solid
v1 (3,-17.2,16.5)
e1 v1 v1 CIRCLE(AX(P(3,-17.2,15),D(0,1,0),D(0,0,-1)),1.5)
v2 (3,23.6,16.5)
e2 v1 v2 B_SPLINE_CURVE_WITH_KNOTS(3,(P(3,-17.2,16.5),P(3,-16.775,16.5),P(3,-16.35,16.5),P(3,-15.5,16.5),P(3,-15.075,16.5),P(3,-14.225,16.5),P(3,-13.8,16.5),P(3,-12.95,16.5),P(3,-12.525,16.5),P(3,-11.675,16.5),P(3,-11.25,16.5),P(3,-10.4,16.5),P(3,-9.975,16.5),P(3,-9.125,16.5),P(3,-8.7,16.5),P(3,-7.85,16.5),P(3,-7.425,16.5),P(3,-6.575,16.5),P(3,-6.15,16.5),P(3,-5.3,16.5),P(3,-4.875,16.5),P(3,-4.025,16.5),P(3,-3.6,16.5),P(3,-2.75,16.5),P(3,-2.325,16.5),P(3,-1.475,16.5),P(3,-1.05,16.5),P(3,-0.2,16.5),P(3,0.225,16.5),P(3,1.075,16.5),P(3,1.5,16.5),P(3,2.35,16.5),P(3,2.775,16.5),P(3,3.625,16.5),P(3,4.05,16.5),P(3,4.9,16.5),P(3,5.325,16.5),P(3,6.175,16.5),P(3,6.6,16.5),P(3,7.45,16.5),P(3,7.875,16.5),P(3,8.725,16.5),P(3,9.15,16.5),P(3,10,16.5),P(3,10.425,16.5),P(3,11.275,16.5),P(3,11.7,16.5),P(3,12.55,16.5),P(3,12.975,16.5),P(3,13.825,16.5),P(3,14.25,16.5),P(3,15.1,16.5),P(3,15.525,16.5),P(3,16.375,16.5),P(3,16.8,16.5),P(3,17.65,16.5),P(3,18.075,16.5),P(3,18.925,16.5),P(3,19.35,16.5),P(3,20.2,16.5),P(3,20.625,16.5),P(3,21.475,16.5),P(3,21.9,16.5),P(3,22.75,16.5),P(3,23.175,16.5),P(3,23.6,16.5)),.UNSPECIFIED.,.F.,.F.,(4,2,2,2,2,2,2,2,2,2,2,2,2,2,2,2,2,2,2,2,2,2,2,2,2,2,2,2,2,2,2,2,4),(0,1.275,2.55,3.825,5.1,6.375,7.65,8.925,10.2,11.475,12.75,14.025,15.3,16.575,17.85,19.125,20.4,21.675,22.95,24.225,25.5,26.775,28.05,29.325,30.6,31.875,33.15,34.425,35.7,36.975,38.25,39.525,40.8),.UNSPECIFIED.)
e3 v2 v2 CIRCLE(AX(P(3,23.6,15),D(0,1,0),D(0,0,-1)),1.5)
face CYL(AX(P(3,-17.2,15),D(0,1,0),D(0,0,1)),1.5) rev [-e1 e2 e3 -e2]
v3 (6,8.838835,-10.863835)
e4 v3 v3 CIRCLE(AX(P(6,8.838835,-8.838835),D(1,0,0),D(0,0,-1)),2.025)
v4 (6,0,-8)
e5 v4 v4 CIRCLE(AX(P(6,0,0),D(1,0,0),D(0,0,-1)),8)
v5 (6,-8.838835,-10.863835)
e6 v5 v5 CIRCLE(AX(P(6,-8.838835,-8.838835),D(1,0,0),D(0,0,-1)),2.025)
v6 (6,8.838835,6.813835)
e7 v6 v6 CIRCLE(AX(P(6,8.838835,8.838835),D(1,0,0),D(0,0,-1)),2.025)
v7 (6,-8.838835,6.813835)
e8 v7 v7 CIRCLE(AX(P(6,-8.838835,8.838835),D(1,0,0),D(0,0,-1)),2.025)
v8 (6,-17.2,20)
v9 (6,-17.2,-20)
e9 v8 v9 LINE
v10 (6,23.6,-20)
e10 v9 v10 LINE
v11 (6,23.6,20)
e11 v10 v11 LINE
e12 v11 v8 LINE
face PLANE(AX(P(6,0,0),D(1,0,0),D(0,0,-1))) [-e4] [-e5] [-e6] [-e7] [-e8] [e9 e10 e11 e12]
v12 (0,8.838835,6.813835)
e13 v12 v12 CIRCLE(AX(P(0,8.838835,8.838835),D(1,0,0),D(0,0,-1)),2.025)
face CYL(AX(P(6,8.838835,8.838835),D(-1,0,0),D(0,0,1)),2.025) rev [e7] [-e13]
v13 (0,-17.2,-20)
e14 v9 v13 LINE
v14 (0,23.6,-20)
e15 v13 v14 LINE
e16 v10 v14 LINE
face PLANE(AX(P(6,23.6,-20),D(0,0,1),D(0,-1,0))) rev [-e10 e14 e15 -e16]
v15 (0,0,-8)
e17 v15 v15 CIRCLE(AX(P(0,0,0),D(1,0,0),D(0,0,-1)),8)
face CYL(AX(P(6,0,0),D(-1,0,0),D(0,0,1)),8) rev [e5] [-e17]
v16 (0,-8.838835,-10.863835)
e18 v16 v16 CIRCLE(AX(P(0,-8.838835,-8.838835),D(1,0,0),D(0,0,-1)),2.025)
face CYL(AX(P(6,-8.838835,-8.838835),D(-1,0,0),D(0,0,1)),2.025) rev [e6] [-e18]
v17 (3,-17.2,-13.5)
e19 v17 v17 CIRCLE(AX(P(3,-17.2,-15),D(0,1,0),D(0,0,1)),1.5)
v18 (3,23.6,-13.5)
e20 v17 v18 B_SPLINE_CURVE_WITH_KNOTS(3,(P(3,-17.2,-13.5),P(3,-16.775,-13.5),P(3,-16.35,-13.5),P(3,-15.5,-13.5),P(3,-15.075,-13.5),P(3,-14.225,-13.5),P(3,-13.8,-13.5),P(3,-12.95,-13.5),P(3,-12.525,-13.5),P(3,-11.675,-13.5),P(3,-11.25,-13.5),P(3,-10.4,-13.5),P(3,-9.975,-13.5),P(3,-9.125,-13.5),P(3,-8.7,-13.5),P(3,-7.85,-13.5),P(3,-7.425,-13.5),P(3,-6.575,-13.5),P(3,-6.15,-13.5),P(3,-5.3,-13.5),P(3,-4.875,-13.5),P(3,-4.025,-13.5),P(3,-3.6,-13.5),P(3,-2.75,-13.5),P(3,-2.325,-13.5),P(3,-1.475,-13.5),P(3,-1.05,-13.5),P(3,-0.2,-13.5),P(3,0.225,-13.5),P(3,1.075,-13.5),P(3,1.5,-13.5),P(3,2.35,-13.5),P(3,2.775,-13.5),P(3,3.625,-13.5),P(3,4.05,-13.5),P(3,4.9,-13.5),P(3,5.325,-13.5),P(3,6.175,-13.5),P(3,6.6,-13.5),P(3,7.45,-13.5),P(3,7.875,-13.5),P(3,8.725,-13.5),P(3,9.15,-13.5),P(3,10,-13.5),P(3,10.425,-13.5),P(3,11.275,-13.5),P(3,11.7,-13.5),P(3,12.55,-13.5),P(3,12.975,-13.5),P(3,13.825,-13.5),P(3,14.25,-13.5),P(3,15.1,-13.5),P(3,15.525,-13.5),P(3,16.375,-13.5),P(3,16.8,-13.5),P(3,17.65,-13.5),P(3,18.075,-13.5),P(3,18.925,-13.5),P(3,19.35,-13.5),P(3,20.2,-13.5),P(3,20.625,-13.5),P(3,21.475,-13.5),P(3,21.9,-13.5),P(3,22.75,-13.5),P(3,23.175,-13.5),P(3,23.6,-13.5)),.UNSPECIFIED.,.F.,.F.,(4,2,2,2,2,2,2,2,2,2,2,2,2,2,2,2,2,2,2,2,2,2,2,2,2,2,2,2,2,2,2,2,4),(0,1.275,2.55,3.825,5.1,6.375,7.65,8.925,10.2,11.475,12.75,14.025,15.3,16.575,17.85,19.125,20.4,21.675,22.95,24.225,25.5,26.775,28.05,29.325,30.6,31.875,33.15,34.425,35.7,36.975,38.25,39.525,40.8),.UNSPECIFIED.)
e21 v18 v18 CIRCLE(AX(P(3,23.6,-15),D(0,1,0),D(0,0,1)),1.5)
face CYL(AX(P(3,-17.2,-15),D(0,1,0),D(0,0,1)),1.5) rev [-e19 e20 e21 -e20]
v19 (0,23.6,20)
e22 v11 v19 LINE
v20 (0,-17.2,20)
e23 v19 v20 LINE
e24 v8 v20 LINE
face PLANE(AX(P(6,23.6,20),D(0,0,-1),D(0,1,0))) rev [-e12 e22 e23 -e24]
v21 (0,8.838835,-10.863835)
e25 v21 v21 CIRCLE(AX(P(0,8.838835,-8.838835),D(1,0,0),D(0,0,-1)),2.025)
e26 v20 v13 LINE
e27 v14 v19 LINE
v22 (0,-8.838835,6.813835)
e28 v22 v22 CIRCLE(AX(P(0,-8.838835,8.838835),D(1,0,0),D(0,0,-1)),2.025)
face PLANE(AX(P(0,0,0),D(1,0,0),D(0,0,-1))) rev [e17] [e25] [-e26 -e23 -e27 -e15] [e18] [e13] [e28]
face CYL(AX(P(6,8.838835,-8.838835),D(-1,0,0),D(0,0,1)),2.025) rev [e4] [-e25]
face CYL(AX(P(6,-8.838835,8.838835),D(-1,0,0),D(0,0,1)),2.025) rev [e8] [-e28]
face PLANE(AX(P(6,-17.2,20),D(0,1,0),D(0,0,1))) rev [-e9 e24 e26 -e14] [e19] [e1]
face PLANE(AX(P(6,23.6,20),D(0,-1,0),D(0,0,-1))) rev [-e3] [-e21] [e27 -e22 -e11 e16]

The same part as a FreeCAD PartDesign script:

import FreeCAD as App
import Part
import Sketcher


def add_polygon(sketch, points):
    """Adds a closed chain of lines whose ends are joined by coincident constraints."""
    first, n = sketch.GeometryCount, len(points)
    for a, b in zip(points, points[1:] + points[:1]):
        sketch.addGeometry(Part.LineSegment(App.Vector(*a, 0), App.Vector(*b, 0)), False)
    for i in range(n):
        sketch.addConstraint(Sketcher.Constraint("Coincident", first + i, 2, first + (i + 1) % n, 1))

doc = App.newDocument("Part")
params = doc.addObject("Spreadsheet::Sheet", "Params")
for row, (alias, value) in enumerate([
    ("sketch1_diameter", "16 mm"),
    ("sketch1_diameter2", "4.05 mm"),
    ("sketch1_height", "40 mm"),
    ("sketch1_width", "40.8 mm"),
    ("pad1_length", "6 mm"),
    ("sketch2_diameter", "3 mm"),
], start=1):
    params.set(f"A{row}", alias)
    params.set(f"B{row}", "=" + value)
    params.setAlias(f"B{row}", alias)

body = doc.addObject("PartDesign::Body", "Body")

sketch1 = doc.addObject("Sketcher::SketchObject", "Sketch")
body.addObject(sketch1)
sketch1.AttachmentSupport = (doc.YZ_Plane, [""])
sketch1.MapMode = "FlatFace"
add_polygon(sketch1, [(23.6, 20), (-17.2, 20), (-17.2, -20), (23.6, -20)])
sketch1.addGeometry(Part.Circle(App.Vector(-8.8, 8.8, 0), App.Vector(0, 0, 1), 2), False)
sketch1.addGeometry(Part.Circle(App.Vector(-8.8, -8.8, 0), App.Vector(0, 0, 1), 2), False)
sketch1.addGeometry(Part.Circle(App.Vector(8.8, 8.8, 0), App.Vector(0, 0, 1), 2), False)
sketch1.addGeometry(Part.Circle(App.Vector(0, 0, 0), App.Vector(0, 0, 1), 8), False)
sketch1.addGeometry(Part.Circle(App.Vector(8.8, -8.8, 0), App.Vector(0, 0, 1), 2), False)
sketch1.addConstraint(Sketcher.Constraint("Horizontal", 0))
sketch1.addConstraint(Sketcher.Constraint("Vertical", 1))
sketch1.addConstraint(Sketcher.Constraint("Horizontal", 2))
sketch1.addConstraint(Sketcher.Constraint("Vertical", 3))
sketch1.addConstraint(Sketcher.Constraint("Coincident", 7, 3, -1, 1))
sketch1.addConstraint(Sketcher.Constraint("Equal", 4, 5))
sketch1.addConstraint(Sketcher.Constraint("Equal", 5, 6))
sketch1.addConstraint(Sketcher.Constraint("Equal", 6, 8))
sketch1.addConstraint(Sketcher.Constraint("Symmetric", 5, 3, 6, 3, -1, 1))
sketch1.addConstraint(Sketcher.Constraint("Symmetric", 4, 3, 8, 3, -1, 1))
sketch1.addConstraint(Sketcher.Constraint("Symmetric", 4, 3, 6, 3, -2))
sketch1.addConstraint(Sketcher.Constraint("Diameter", 7, 16.0))
sketch1.addConstraint(Sketcher.Constraint("Diameter", 4, 4.05))
sketch1.addConstraint(Sketcher.Constraint("DistanceY", 1, 2, 1, 1, 40.0))
sketch1.addConstraint(Sketcher.Constraint("DistanceX", 0, 2, 0, 1, 40.8))
sketch1.addConstraint(Sketcher.Constraint("DistanceY", -1, 1, 0, 2, 20.0))
sketch1.addConstraint(Sketcher.Constraint("DistanceX", 0, 2, -1, 1, 17.2))
sketch1.addConstraint(Sketcher.Constraint("DistanceY", 5, 3, 4, 3, 17.67767))
sketch1.addConstraint(Sketcher.Constraint("DistanceX", 4, 3, 6, 3, 17.67767))
sketch1.setExpression("Constraints[15]", "Params.sketch1_diameter")
sketch1.setExpression("Constraints[16]", "Params.sketch1_diameter2")
sketch1.setExpression("Constraints[17]", "Params.sketch1_height")
sketch1.setExpression("Constraints[18]", "Params.sketch1_width")
pad1 = doc.addObject("PartDesign::Pad", "Pad")
body.addObject(pad1)
pad1.Profile = sketch1
pad1.setExpression("Length", "Params.pad1_length")

sketch2 = doc.addObject("Sketcher::SketchObject", "Sketch001")
body.addObject(sketch2)
sketch2.AttachmentSupport = (doc.XZ_Plane, [""])
sketch2.MapMode = "FlatFace"
sketch2.addGeometry(Part.Circle(App.Vector(3, -15, 0), App.Vector(0, 0, 1), 1.5), False)
sketch2.addGeometry(Part.Circle(App.Vector(3, 15, 0), App.Vector(0, 0, 1), 1.5), False)
sketch2.addConstraint(Sketcher.Constraint("Equal", 0, 1))
sketch2.addConstraint(Sketcher.Constraint("Symmetric", 0, 3, 1, 3, -1))
sketch2.addConstraint(Sketcher.Constraint("Diameter", 0, 3.0))
sketch2.addConstraint(Sketcher.Constraint("DistanceX", -1, 1, 0, 3, 3.0))
sketch2.addConstraint(Sketcher.Constraint("DistanceY", 0, 3, -1, 1, 15.0))
sketch2.setExpression("Constraints[2]", "Params.sketch2_diameter")
pocket1 = doc.addObject("PartDesign::Pocket", "Pocket")
body.addObject(pocket1)
pocket1.Profile = sketch2
pocket1.Type = "ThroughAll"
pocket1.Midplane = True

doc.recompute()
